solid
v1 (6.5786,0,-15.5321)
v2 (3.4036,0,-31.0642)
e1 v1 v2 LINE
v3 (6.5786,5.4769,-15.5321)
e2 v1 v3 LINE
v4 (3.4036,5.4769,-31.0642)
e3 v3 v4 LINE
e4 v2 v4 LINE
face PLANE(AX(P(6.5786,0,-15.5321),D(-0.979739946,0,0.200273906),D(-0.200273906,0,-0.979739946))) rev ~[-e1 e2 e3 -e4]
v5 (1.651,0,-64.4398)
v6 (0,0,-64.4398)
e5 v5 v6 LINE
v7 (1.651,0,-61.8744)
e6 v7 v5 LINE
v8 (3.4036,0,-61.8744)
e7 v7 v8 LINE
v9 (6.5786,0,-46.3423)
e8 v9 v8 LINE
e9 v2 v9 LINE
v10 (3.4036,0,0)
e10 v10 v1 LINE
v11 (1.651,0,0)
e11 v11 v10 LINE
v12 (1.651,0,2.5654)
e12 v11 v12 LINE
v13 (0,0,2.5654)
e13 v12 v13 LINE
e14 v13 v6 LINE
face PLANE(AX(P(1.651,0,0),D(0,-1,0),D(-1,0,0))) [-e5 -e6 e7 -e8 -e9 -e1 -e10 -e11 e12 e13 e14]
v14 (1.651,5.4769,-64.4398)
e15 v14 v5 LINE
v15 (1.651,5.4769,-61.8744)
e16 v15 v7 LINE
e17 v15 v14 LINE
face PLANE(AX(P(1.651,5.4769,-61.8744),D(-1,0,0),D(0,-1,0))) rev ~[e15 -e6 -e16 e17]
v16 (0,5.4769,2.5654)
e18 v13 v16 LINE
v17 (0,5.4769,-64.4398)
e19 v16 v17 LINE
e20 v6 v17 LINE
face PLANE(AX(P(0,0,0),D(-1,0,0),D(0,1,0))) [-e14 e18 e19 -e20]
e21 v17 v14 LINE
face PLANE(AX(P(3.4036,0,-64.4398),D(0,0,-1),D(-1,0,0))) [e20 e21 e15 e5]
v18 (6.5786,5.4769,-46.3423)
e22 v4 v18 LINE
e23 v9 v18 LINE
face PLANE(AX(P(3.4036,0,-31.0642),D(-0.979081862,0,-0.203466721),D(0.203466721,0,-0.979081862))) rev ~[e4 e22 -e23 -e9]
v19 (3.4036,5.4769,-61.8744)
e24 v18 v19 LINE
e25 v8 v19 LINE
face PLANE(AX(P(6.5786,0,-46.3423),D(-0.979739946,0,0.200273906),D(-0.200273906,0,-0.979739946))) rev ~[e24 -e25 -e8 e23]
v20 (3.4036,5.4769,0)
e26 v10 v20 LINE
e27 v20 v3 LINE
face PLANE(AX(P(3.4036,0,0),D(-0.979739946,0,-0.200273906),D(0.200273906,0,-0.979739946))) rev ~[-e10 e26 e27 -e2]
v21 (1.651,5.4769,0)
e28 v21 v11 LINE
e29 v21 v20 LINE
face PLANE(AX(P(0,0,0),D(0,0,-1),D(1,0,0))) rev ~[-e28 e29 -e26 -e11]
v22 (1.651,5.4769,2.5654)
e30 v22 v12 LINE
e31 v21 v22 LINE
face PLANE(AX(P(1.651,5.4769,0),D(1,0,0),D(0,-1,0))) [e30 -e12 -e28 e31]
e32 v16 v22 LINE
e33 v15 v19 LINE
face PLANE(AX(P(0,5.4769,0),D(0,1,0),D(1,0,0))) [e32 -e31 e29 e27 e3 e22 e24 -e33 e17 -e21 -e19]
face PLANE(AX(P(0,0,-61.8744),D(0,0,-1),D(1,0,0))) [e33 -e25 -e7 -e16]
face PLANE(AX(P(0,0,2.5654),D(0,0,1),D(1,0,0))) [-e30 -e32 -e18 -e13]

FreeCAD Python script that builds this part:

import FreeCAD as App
import Part
import Sketcher
Q = App.Units.Quantity

doc = App.newDocument("Part")
body = doc.addObject("PartDesign::Body", "Body")

# Sketch on XZ plane
sketch1 = body.newObject("Sketcher::SketchObject", "Sketch")
sketch1.AttachmentSupport = (doc.getObject("XZ_Plane"), [""])
sketch1.MapMode = "FlatFace"
sketch1.addGeometry(Part.LineSegment(App.Vector(0, -61.9, 0), App.Vector(0, 0, 0)), False)
sketch1.addGeometry(Part.LineSegment(App.Vector(0, 0, 0), App.Vector(3.4, 0, 0)), False)
sketch1.addGeometry(Part.LineSegment(App.Vector(3.4, 0, 0), App.Vector(6.6, -15.5, 0)), False)
sketch1.addGeometry(Part.LineSegment(App.Vector(6.6, -15.5, 0), App.Vector(3.4, -31.1, 0)), False)
sketch1.addGeometry(Part.LineSegment(App.Vector(3.4, -31.1, 0), App.Vector(6.6, -46.3, 0)), False)
sketch1.addGeometry(Part.LineSegment(App.Vector(6.6, -46.3, 0), App.Vector(3.4, -61.9, 0)), False)
sketch1.addGeometry(Part.LineSegment(App.Vector(3.4, -61.9, 0), App.Vector(0, -61.9, 0)), False)
sketch1.addConstraint(Sketcher.Constraint("Coincident", 0, 2, 1, 1))
sketch1.addConstraint(Sketcher.Constraint("Coincident", 1, 2, 2, 1))
sketch1.addConstraint(Sketcher.Constraint("Coincident", 2, 2, 3, 1))
sketch1.addConstraint(Sketcher.Constraint("Coincident", 3, 2, 4, 1))
sketch1.addConstraint(Sketcher.Constraint("Coincident", 4, 2, 5, 1))
sketch1.addConstraint(Sketcher.Constraint("Coincident", 5, 2, 6, 1))
sketch1.addConstraint(Sketcher.Constraint("Coincident", 6, 2, 0, 1))
sketch1.addConstraint(Sketcher.Constraint("Vertical", 0))
sketch1.addConstraint(Sketcher.Constraint("Horizontal", 1))
sketch1.addConstraint(Sketcher.Constraint("Horizontal", 6))
sketch1.addConstraint(Sketcher.Constraint("Coincident", 0, 2, -1, 1))
sketch1.addConstraint(Sketcher.Constraint("Parallel", 3, 5))
sketch1.addConstraint(Sketcher.Constraint("Vertical", 1, 2, 3, 2))
sketch1.addConstraint(Sketcher.Constraint("Vertical", 2, 2, 4, 2))
sketch1.addConstraint(Sketcher.Constraint("Vertical", 3, 2, 5, 2))
sketch1.addConstraint(Sketcher.Constraint("Equal", 2, 3))
sketch1.addConstraint(Sketcher.Constraint("DistanceX", 1, 1, 1, 2, Q("0.134 in")))
sketch1.addConstraint(Sketcher.Constraint("DistanceY", 0, 1, 0, 2, Q("2.436 in")))
sketch1.addConstraint(Sketcher.Constraint("DistanceY", 3, 2, -1, 1, Q("1.223 in")))
sketch1.addConstraint(Sketcher.Constraint("DistanceX", 1, 2, 2, 2, Q("0.125 in")))
pad1 = body.newObject("PartDesign::Pad", "Pad")
pad1.Profile = sketch1
pad1.Length = 5.4769
pad1.Reversed = True

# Sketch on XY plane
sketch2 = body.newObject("Sketcher::SketchObject", "Sketch001")
sketch2.AttachmentSupport = (doc.getObject("XY_Plane"), [""])
sketch2.MapMode = "FlatFace"
sketch2.AttachmentOffset = App.Placement(App.Vector(0, 0, -2.436 * 25.4), App.Rotation())
sketch2.addGeometry(Part.LineSegment(App.Vector(1.7, 5.5, 0), App.Vector(1.7, 0, 0)), False)
sketch2.addGeometry(Part.LineSegment(App.Vector(1.7, 0, 0), App.Vector(0, 0, 0)), False)
sketch2.addGeometry(Part.LineSegment(App.Vector(0, 0, 0), App.Vector(0, 5.5, 0)), False)
sketch2.addGeometry(Part.LineSegment(App.Vector(0, 5.5, 0), App.Vector(1.7, 5.5, 0)), False)
sketch2.addConstraint(Sketcher.Constraint("Coincident", 0, 2, 1, 1))
sketch2.addConstraint(Sketcher.Constraint("Coincident", 1, 2, 2, 1))
sketch2.addConstraint(Sketcher.Constraint("Coincident", 2, 2, 3, 1))
sketch2.addConstraint(Sketcher.Constraint("Coincident", 3, 2, 0, 1))
sketch2.addConstraint(Sketcher.Constraint("Vertical", 0))
sketch2.addConstraint(Sketcher.Constraint("Horizontal", 1))
sketch2.addConstraint(Sketcher.Constraint("Vertical", 2))
sketch2.addConstraint(Sketcher.Constraint("Horizontal", 3))
sketch2.addConstraint(Sketcher.Constraint("Coincident", 1, 2, -1, 1))
sketch2.addConstraint(Sketcher.Constraint("DistanceX", 1, 2, 1, 1, Q("0.065 in")))
sketch2.addConstraint(Sketcher.Constraint("DistanceY", 0, 2, 0, 1, Q("5.477 mm")))
pad2 = body.newObject("PartDesign::Pad", "Pad001")
pad2.Profile = sketch2
pad2.Length = Q("0.101 in")
pad2.Reversed = True

# Sketch on XY plane
sketch3 = body.newObject("Sketcher::SketchObject", "Sketch002")
sketch3.AttachmentSupport = (doc.getObject("XY_Plane"), [""])
sketch3.MapMode = "FlatFace"
sketch3.addGeometry(Part.LineSegment(App.Vector(0, 0, 0), App.Vector(1.7, 0, 0)), False)
sketch3.addGeometry(Part.LineSegment(App.Vector(1.7, 0, 0), App.Vector(1.7, 5.5, 0)), False)
sketch3.addGeometry(Part.LineSegment(App.Vector(1.7, 5.5, 0), App.Vector(0, 5.5, 0)), False)
sketch3.addGeometry(Part.LineSegment(App.Vector(0, 5.5, 0), App.Vector(0, 0, 0)), False)
sketch3.addConstraint(Sketcher.Constraint("Coincident", 0, 2, 1, 1))
sketch3.addConstraint(Sketcher.Constraint("Coincident", 1, 2, 2, 1))
sketch3.addConstraint(Sketcher.Constraint("Coincident", 2, 2, 3, 1))
sketch3.addConstraint(Sketcher.Constraint("Coincident", 3, 2, 0, 1))
sketch3.addConstraint(Sketcher.Constraint("Horizontal", 0))
sketch3.addConstraint(Sketcher.Constraint("Vertical", 1))
sketch3.addConstraint(Sketcher.Constraint("Horizontal", 2))
sketch3.addConstraint(Sketcher.Constraint("Vertical", 3))
sketch3.addConstraint(Sketcher.Constraint("Coincident", 3, 2, -1, 1))
sketch3.addConstraint(Sketcher.Constraint("DistanceX", 0, 1, 0, 2, Q("0.065 in")))
sketch3.addConstraint(Sketcher.Constraint("DistanceY", 1, 1, 1, 2, Q("5.477 mm")))
pad3 = body.newObject("PartDesign::Pad", "Pad002")
pad3.Profile = sketch3
pad3.Length = Q("0.101 in")

doc.recompute()
